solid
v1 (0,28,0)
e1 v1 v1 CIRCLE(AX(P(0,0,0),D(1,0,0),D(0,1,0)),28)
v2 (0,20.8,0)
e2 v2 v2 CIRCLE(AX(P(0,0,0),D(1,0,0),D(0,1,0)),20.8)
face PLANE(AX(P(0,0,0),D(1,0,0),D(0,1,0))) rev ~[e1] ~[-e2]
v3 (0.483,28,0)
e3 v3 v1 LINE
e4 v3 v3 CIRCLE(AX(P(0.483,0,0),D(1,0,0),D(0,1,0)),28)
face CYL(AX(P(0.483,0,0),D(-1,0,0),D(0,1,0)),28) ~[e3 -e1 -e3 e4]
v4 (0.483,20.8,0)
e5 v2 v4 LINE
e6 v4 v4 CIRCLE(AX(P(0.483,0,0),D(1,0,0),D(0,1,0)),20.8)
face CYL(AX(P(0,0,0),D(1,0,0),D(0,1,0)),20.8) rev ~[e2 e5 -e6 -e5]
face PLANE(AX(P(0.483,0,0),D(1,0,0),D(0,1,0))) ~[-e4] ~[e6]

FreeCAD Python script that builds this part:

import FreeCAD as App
import Part
import Sketcher

V = App.Vector


def add_polygon(sketch, points):
    """Adds a closed chain of lines whose ends are joined by coincident constraints."""
    first, n = sketch.GeometryCount, len(points)
    for a, b in zip(points, points[1:] + points[:1]):
        sketch.addGeometry(Part.LineSegment(App.Vector(*a, 0), App.Vector(*b, 0)), False)
    for i in range(n):
        sketch.addConstraint(Sketcher.Constraint("Coincident", first + i, 2, first + (i + 1) % n, 1))

doc = App.newDocument("Part")
body = doc.addObject("PartDesign::Body", "Body")

# Sketch on XY plane
sketch1 = doc.addObject("Sketcher::SketchObject", "Sketch")
body.addObject(sketch1)
sketch1.AttachmentSupport = (doc.XY_Plane, [""])
sketch1.MapMode = "FlatFace"
add_polygon(sketch1, [(0, 28), (0, 20.8), (0.48, 20.8), (0.48, 28)])  # lines 0-3
sketch1.addConstraint([
    Sketcher.Constraint("Vertical", 0),
    Sketcher.Constraint("Horizontal", 1),
    Sketcher.Constraint("Vertical", 2),
    Sketcher.Constraint("Horizontal", 3),
    Sketcher.Constraint("PointOnObject", 0, 2, -2),
    Sketcher.Constraint("DistanceY", 0, 2, 0, 1, 7.2),
    Sketcher.Constraint("DistanceY", -1, 1, 2, 2, 28.0),
    Sketcher.Constraint("DistanceX", 1, 1, 1, 2, 0.483),
])
revolution = doc.addObject("PartDesign::Revolution", "Revolution")
body.addObject(revolution)
revolution.Profile = sketch1
revolution.ReferenceAxis = (sketch1, ["H_Axis"])
revolution.Angle = 360

doc.recompute()
